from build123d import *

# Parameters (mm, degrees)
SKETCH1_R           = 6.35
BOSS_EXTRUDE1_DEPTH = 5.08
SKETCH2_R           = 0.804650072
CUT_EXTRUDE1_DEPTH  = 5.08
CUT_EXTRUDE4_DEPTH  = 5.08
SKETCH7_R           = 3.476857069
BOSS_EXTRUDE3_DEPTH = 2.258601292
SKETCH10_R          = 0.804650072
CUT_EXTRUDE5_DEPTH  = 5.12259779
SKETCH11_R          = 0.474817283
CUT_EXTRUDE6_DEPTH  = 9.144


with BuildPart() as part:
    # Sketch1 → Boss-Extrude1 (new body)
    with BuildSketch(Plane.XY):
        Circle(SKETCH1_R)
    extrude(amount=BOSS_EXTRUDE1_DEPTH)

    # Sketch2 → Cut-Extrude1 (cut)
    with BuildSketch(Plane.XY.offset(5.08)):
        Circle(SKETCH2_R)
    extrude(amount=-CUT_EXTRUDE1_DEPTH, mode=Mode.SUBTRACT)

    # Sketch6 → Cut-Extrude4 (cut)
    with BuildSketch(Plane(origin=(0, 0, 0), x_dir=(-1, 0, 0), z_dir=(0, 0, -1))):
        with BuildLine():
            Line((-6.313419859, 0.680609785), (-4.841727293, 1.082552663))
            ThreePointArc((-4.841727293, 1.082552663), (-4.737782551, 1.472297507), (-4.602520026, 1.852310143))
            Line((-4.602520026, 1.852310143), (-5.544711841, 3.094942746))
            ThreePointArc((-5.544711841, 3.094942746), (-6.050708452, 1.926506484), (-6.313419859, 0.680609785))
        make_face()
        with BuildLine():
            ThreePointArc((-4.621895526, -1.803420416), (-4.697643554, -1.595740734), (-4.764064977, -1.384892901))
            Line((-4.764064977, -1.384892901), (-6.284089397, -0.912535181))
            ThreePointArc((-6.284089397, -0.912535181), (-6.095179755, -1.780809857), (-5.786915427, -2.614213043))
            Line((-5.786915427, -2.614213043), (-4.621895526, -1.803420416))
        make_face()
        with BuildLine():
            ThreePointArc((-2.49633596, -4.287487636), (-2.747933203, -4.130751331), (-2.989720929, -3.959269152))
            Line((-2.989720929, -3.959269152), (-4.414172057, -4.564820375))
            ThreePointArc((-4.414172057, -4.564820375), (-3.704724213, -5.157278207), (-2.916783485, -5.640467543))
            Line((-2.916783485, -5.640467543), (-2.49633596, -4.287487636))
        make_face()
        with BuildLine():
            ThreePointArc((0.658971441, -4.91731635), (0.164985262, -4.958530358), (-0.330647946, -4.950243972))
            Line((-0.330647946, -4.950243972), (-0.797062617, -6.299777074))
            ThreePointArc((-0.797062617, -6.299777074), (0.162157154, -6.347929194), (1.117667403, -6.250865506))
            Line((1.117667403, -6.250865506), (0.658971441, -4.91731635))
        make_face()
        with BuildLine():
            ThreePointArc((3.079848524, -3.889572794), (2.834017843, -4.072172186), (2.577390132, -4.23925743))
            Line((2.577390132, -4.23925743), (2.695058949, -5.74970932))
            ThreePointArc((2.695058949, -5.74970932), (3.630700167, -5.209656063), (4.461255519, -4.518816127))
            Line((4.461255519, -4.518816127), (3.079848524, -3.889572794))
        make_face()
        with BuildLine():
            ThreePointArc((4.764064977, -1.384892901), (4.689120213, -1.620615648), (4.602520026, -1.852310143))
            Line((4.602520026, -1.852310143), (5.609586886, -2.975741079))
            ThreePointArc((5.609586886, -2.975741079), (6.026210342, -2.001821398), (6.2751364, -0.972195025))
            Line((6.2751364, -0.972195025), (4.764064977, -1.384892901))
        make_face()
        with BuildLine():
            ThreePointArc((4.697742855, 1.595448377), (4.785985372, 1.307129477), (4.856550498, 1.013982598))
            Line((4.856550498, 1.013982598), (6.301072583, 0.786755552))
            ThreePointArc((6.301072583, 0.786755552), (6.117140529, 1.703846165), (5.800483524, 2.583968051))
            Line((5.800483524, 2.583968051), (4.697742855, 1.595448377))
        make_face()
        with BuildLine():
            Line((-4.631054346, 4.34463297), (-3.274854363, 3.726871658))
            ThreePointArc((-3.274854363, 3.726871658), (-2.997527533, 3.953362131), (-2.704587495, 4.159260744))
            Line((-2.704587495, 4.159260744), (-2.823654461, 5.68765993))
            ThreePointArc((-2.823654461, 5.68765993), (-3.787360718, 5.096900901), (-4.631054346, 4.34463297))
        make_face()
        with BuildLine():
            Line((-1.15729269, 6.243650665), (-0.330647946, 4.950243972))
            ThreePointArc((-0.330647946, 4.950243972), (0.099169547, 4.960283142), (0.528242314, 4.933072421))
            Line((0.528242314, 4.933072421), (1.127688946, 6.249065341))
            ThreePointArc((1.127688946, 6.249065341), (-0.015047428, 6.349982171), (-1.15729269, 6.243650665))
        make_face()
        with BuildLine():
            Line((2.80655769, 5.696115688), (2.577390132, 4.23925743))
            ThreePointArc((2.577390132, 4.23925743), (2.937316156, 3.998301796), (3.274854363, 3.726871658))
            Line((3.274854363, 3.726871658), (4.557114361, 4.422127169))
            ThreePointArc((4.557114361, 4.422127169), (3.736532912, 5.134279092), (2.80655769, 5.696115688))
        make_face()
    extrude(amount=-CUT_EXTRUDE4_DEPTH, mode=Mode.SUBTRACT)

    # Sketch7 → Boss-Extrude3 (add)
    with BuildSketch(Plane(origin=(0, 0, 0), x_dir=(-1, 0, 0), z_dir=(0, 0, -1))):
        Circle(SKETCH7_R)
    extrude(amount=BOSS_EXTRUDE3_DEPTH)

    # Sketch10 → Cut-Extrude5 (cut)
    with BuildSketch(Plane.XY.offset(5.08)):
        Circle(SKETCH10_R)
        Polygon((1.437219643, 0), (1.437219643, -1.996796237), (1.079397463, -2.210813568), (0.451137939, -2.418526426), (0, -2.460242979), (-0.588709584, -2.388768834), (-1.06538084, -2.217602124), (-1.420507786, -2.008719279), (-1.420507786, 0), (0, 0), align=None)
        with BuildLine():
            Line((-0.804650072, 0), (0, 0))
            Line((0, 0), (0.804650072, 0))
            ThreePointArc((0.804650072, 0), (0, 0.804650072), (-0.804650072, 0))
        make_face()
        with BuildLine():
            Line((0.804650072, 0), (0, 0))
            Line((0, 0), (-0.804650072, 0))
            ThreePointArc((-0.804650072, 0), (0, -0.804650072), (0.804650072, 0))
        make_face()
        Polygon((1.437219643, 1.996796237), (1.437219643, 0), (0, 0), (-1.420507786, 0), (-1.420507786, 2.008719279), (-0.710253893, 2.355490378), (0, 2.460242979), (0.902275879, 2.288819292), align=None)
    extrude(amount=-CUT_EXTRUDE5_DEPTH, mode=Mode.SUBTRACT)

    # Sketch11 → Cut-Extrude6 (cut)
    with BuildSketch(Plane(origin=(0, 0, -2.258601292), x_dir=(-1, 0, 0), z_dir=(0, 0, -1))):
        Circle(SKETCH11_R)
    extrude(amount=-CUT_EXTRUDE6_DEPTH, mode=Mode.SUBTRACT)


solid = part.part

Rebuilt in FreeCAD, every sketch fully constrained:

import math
import FreeCAD as App
import Part
import Sketcher
from FreeCAD import Vector
Q = App.Units.Quantity


def add_polygon(sketch, points):
    """Adds a closed chain of lines whose ends are joined by coincident constraints."""
    first, n = sketch.GeometryCount, len(points)
    for a, b in zip(points, points[1:] + points[:1]):
        sketch.addGeometry(Part.LineSegment(App.Vector(*a, 0), App.Vector(*b, 0)), False)
    for i in range(n):
        sketch.addConstraint(Sketcher.Constraint("Coincident", first + i, 2, first + (i + 1) % n, 1))

doc = App.newDocument("Part")
params = doc.addObject("Spreadsheet::Sheet", "Params")
for row, (alias, value) in enumerate([
    ("sketch1_diameter", "0.5 in"),
    ("pad1_length", "0.2 in"),
    ("pocket1_length", "0.2 in"),
    ("sketch3_radius", "0.25 in"),
    ("pocket2_length", "0.2 in"),
    ("pad2_length", "2.258601 mm"),
    ("pocket3_length", "5.122598 mm"),
    ("pocket4_length", "0.36 in"),
], start=1):
    params.set(f"A{row}", alias)
    params.set(f"B{row}", "=" + value)
    params.setAlias(f"B{row}", alias)

body = doc.addObject("PartDesign::Body", "Body")

# Sketch on XY plane
sketch1 = doc.addObject("Sketcher::SketchObject", "Sketch")
body.addObject(sketch1)
sketch1.AttachmentSupport = (doc.XY_Plane, [""])
sketch1.MapMode = "FlatFace"
sketch1.addGeometry(Part.Circle(Vector(0, 0, 0), Vector(0, 0, 1), 6), False)
sketch1.addConstraint(Sketcher.Constraint("Coincident", 0, 3, -1, 1))
sketch1.addConstraint(Sketcher.Constraint("Diameter", 0, Q("0.5 in")))
sketch1.setExpression("Constraints[1]", "Params.sketch1_diameter")
pad1 = doc.addObject("PartDesign::Pad", "Pad")
body.addObject(pad1)
pad1.Profile = sketch1
pad1.setExpression("Length", "Params.pad1_length")

# Sketch on XY plane
sketch2 = doc.addObject("Sketcher::SketchObject", "Sketch001")
body.addObject(sketch2)
sketch2.AttachmentSupport = (doc.XY_Plane, [""])
sketch2.MapMode = "FlatFace"
sketch2.AttachmentOffset = App.Placement(Vector(0, 0, 0.2 * 25.4), App.Rotation())
sketch2.addGeometry(Part.Circle(Vector(0, 0, 0), Vector(0, 0, 1), 0.8), False)
sketch2.addConstraint(Sketcher.Constraint("Coincident", 0, 3, -1, 1))
sketch2.addConstraint(Sketcher.Constraint("Diameter", 0, Q("1.6093 mm")))
pocket1 = doc.addObject("PartDesign::Pocket", "Pocket")
body.addObject(pocket1)
pocket1.Profile = sketch2
pocket1.setExpression("Length", "Params.pocket1_length")

# Sketch on XY plane
sketch3 = doc.addObject("Sketcher::SketchObject", "Sketch002")
body.addObject(sketch3)
sketch3.AttachmentSupport = (doc.XY_Plane, [""])
sketch3.MapMode = "FlatFace"
sketch3.addGeometry(Part.LineSegment(Vector(6.31, 0.68, 0), Vector(4.84, 1.08, 0)), False)
sketch3.addGeometry(Part.ArcOfCircle(Part.Circle(Vector(0, 0, 0), Vector(0, 0, 1), 4.96), math.radians(12.6), math.radians(21.92)), False)
sketch3.addGeometry(Part.LineSegment(Vector(4.6, 1.85, 0), Vector(5.54, 3.09, 0)), False)
sketch3.addGeometry(Part.ArcOfCircle(Part.Circle(Vector(0, 0, 0), Vector(0, 0, 1), 6.35), math.radians(6), math.radians(29)), False)
sketch3.addGeometry(Part.ArcOfCircle(Part.Circle(Vector(0, 0, 0), Vector(0, 0, 1), 4.96), math.radians(-21.32), math.radians(-16.21)), False)
sketch3.addGeometry(Part.LineSegment(Vector(4.76, -1.38, 0), Vector(6.28, -0.91, 0)), False)
sketch3.addGeometry(Part.ArcOfCircle(Part.Circle(Vector(0, 0, 0), Vector(0, 0, 1), 6.35), math.radians(-24.31), math.radians(-8.26)), False)
sketch3.addGeometry(Part.LineSegment(Vector(5.79, -2.61, 0), Vector(4.62, -1.8, 0)), False)
sketch3.addGeometry(Part.ArcOfCircle(Part.Circle(Vector(0, 0, 0), Vector(0, 0, 1), 4.96), math.radians(-59.79), math.radians(-52.94)), False)
sketch3.addGeometry(Part.LineSegment(Vector(2.99, -3.96, 0), Vector(4.41, -4.56, 0)), False)
sketch3.addGeometry(Part.ArcOfCircle(Part.Circle(Vector(0, 0, 0), Vector(0, 0, 1), 6.35), math.radians(-62.66), math.radians(-45.96)), False)
sketch3.addGeometry(Part.LineSegment(Vector(2.92, -5.64, 0), Vector(2.5, -4.29, 0)), False)
sketch3.addGeometry(Part.ArcOfCircle(Part.Circle(Vector(0, 0, 0), Vector(0, 0, 1), 4.96), math.radians(-97.63), math.radians(-86.18)), False)
sketch3.addGeometry(Part.LineSegment(Vector(0.33, -4.95, 0), Vector(0.8, -6.3, 0)), False)
sketch3.addGeometry(Part.ArcOfCircle(Part.Circle(Vector(0, 0, 0), Vector(0, 0, 1), 6.35), math.radians(-100.14), math.radians(-82.79)), False)
sketch3.addGeometry(Part.LineSegment(Vector(-1.12, -6.25, 0), Vector(-0.66, -4.92, 0)), False)
sketch3.addGeometry(Part.ArcOfCircle(Part.Circle(Vector(0, 0, 0), Vector(0, 0, 1), 4.96), math.radians(-128.37), math.radians(-121.3)), False)
sketch3.addGeometry(Part.LineSegment(Vector(-2.58, -4.24, 0), Vector(-2.7, -5.75, 0)), False)
sketch3.addGeometry(Part.ArcOfCircle(Part.Circle(Vector(0, 0, 0), Vector(0, 0, 1), 6.35), math.radians(-134.63), math.radians(-115.11)), False)
sketch3.addGeometry(Part.LineSegment(Vector(-4.46, -4.52, 0), Vector(-3.08, -3.89, 0)), False)
sketch3.addGeometry(Part.ArcOfCircle(Part.Circle(Vector(0, 0, 0), Vector(0, 0, 1), 4.96), math.radians(-163.79), math.radians(-158.08)), False)
sketch3.addGeometry(Part.LineSegment(Vector(-4.6, -1.85, 0), Vector(-5.61, -2.98, 0)), False)
sketch3.addGeometry(Part.ArcOfCircle(Part.Circle(Vector(0, 0, 0), Vector(0, 0, 1), 6.35), math.radians(-171.19), math.radians(-152.06)), False)
sketch3.addGeometry(Part.LineSegment(Vector(-6.28, -0.97, 0), Vector(-4.76, -1.38, 0)), False)
sketch3.addGeometry(Part.ArcOfCircle(Part.Circle(Vector(0, 0, 0), Vector(0, 0, 1), 4.96), math.radians(161.24), math.radians(168.21)), False)
sketch3.addGeometry(Part.LineSegment(Vector(-4.86, 1.01, 0), Vector(-6.3, 0.79, 0)), False)
sketch3.addGeometry(Part.ArcOfCircle(Part.Circle(Vector(0, 0, 0), Vector(0, 0, 1), 6.35), math.radians(155.99), math.radians(172.88)), False)
sketch3.addGeometry(Part.LineSegment(Vector(-5.8, 2.58, 0), Vector(-4.7, 1.6, 0)), False)
sketch3.addGeometry(Part.LineSegment(Vector(4.63, 4.34, 0), Vector(3.27, 3.73, 0)), False)
sketch3.addGeometry(Part.ArcOfCircle(Part.Circle(Vector(0, 0, 0), Vector(0, 0, 1), 4.96), math.radians(48.69), math.radians(56.97)), False)
sketch3.addGeometry(Part.LineSegment(Vector(2.7, 4.16, 0), Vector(2.82, 5.69, 0)), False)
sketch3.addGeometry(Part.ArcOfCircle(Part.Circle(Vector(0, 0, 0), Vector(0, 0, 1), 6.35), math.radians(43), math.radians(64)), False)
sketch3.addGeometry(Part.LineSegment(Vector(1.16, 6.24, 0), Vector(0.33, 4.95, 0)), False)
sketch3.addGeometry(Part.ArcOfCircle(Part.Circle(Vector(0, 0, 0), Vector(0, 0, 1), 4.96), math.radians(86.18), math.radians(96.11)), False)
sketch3.addGeometry(Part.LineSegment(Vector(-0.53, 4.93, 0), Vector(-1.13, 6.25, 0)), False)
sketch3.addGeometry(Part.ArcOfCircle(Part.Circle(Vector(0, 0, 0), Vector(0, 0, 1), 6.35), math.radians(79), math.radians(100)), False)
sketch3.addGeometry(Part.LineSegment(Vector(-2.81, 5.7, 0), Vector(-2.58, 4.24, 0)), False)
sketch3.addGeometry(Part.ArcOfCircle(Part.Circle(Vector(0, 0, 0), Vector(0, 0, 1), 4.96), math.radians(121.3), math.radians(131.31)), False)
sketch3.addGeometry(Part.LineSegment(Vector(-3.27, 3.73, 0), Vector(-4.56, 4.42, 0)), False)
sketch3.addGeometry(Part.ArcOfCircle(Part.Circle(Vector(0, 0, 0), Vector(0, 0, 1), 6.35), math.radians(116.23), math.radians(135.86)), False)
sketch3.addConstraint(Sketcher.Constraint("Coincident", 0, 2, 1, 1))
sketch3.addConstraint(Sketcher.Constraint("Coincident", 1, 2, 2, 1))
sketch3.addConstraint(Sketcher.Constraint("Coincident", 2, 2, 3, 2))
sketch3.addConstraint(Sketcher.Constraint("Coincident", 3, 1, 0, 1))
sketch3.addConstraint(Sketcher.Constraint("Coincident", 4, 2, 5, 1))
sketch3.addConstraint(Sketcher.Constraint("Coincident", 5, 2, 6, 2))
sketch3.addConstraint(Sketcher.Constraint("Coincident", 6, 1, 7, 1))
sketch3.addConstraint(Sketcher.Constraint("Coincident", 7, 2, 4, 1))
sketch3.addConstraint(Sketcher.Constraint("Coincident", 8, 2, 9, 1))
sketch3.addConstraint(Sketcher.Constraint("Coincident", 9, 2, 10, 2))
sketch3.addConstraint(Sketcher.Constraint("Coincident", 10, 1, 11, 1))
sketch3.addConstraint(Sketcher.Constraint("Coincident", 11, 2, 8, 1))
sketch3.addConstraint(Sketcher.Constraint("Coincident", 12, 2, 13, 1))
sketch3.addConstraint(Sketcher.Constraint("Coincident", 13, 2, 14, 2))
sketch3.addConstraint(Sketcher.Constraint("Coincident", 14, 1, 15, 1))
sketch3.addConstraint(Sketcher.Constraint("Coincident", 15, 2, 12, 1))
sketch3.addConstraint(Sketcher.Constraint("Coincident", 16, 2, 17, 1))
sketch3.addConstraint(Sketcher.Constraint("Coincident", 17, 2, 18, 2))
sketch3.addConstraint(Sketcher.Constraint("Coincident", 18, 1, 19, 1))
sketch3.addConstraint(Sketcher.Constraint("Coincident", 19, 2, 16, 1))
sketch3.addConstraint(Sketcher.Constraint("Coincident", 20, 2, 21, 1))
sketch3.addConstraint(Sketcher.Constraint("Coincident", 21, 2, 22, 2))
sketch3.addConstraint(Sketcher.Constraint("Coincident", 22, 1, 23, 1))
sketch3.addConstraint(Sketcher.Constraint("Coincident", 23, 2, 20, 1))
sketch3.addConstraint(Sketcher.Constraint("Coincident", 24, 2, 25, 1))
sketch3.addConstraint(Sketcher.Constraint("Coincident", 25, 2, 26, 2))
sketch3.addConstraint(Sketcher.Constraint("Coincident", 26, 1, 27, 1))
sketch3.addConstraint(Sketcher.Constraint("Coincident", 27, 2, 24, 1))
sketch3.addConstraint(Sketcher.Constraint("Coincident", 28, 2, 29, 1))
sketch3.addConstraint(Sketcher.Constraint("Coincident", 29, 2, 30, 1))
sketch3.addConstraint(Sketcher.Constraint("Coincident", 30, 2, 31, 2))
sketch3.addConstraint(Sketcher.Constraint("Coincident", 31, 1, 28, 1))
sketch3.addConstraint(Sketcher.Constraint("Coincident", 32, 2, 33, 1))
sketch3.addConstraint(Sketcher.Constraint("Coincident", 33, 2, 34, 1))
sketch3.addConstraint(Sketcher.Constraint("Coincident", 34, 2, 35, 2))
sketch3.addConstraint(Sketcher.Constraint("Coincident", 35, 1, 32, 1))
sketch3.addConstraint(Sketcher.Constraint("Coincident", 36, 2, 37, 1))
sketch3.addConstraint(Sketcher.Constraint("Coincident", 37, 2, 38, 1))
sketch3.addConstraint(Sketcher.Constraint("Coincident", 38, 2, 39, 2))
sketch3.addConstraint(Sketcher.Constraint("Coincident", 39, 1, 36, 1))
sketch3.addConstraint(Sketcher.Constraint("Coincident", 1, 3, -1, 1))
sketch3.addConstraint(Sketcher.Constraint("Coincident", 3, 3, -1, 1))
sketch3.addConstraint(Sketcher.Constraint("Coincident", 4, 3, -1, 1))
sketch3.addConstraint(Sketcher.Constraint("Coincident", 6, 3, -1, 1))
sketch3.addConstraint(Sketcher.Constraint("Coincident", 8, 3, -1, 1))
sketch3.addConstraint(Sketcher.Constraint("Coincident", 10, 3, -1, 1))
sketch3.addConstraint(Sketcher.Constraint("Coincident", 12, 3, -1, 1))
sketch3.addConstraint(Sketcher.Constraint("Coincident", 14, 3, -1, 1))
sketch3.addConstraint(Sketcher.Constraint("Coincident", 16, 3, -1, 1))
sketch3.addConstraint(Sketcher.Constraint("Coincident", 18, 3, -1, 1))
sketch3.addConstraint(Sketcher.Constraint("Coincident", 20, 3, -1, 1))
sketch3.addConstraint(Sketcher.Constraint("Coincident", 22, 3, -1, 1))
sketch3.addConstraint(Sketcher.Constraint("Coincident", 24, 3, -1, 1))
sketch3.addConstraint(Sketcher.Constraint("Coincident", 26, 3, -1, 1))
sketch3.addConstraint(Sketcher.Constraint("Coincident", 29, 3, -1, 1))
sketch3.addConstraint(Sketcher.Constraint("Coincident", 31, 3, -1, 1))
sketch3.addConstraint(Sketcher.Constraint("Coincident", 33, 3, -1, 1))
sketch3.addConstraint(Sketcher.Constraint("Coincident", 35, 3, -1, 1))
sketch3.addConstraint(Sketcher.Constraint("Coincident", 37, 3, -1, 1))
sketch3.addConstraint(Sketcher.Constraint("Coincident", 39, 3, -1, 1))
sketch3.addConstraint(Sketcher.Constraint("Equal", 1, 4))
sketch3.addConstraint(Sketcher.Constraint("Equal", 3, 6))
sketch3.addConstraint(Sketcher.Constraint("Equal", 4, 8))
sketch3.addConstraint(Sketcher.Constraint("Equal", 6, 10))
sketch3.addConstraint(Sketcher.Constraint("Equal", 8, 12))
sketch3.addConstraint(Sketcher.Constraint("Equal", 10, 14))
sketch3.addConstraint(Sketcher.Constraint("Equal", 12, 16))
sketch3.addConstraint(Sketcher.Constraint("Equal", 14, 18))
sketch3.addConstraint(Sketcher.Constraint("Equal", 16, 20))
sketch3.addConstraint(Sketcher.Constraint("Equal", 18, 22))
sketch3.addConstraint(Sketcher.Constraint("Equal", 20, 24))
sketch3.addConstraint(Sketcher.Constraint("Equal", 22, 26))
sketch3.addConstraint(Sketcher.Constraint("Equal", 24, 29))
sketch3.addConstraint(Sketcher.Constraint("Equal", 26, 31))
sketch3.addConstraint(Sketcher.Constraint("Equal", 29, 33))
sketch3.addConstraint(Sketcher.Constraint("Equal", 31, 35))
sketch3.addConstraint(Sketcher.Constraint("Equal", 33, 37))
sketch3.addConstraint(Sketcher.Constraint("Equal", 35, 39))
sketch3.addConstraint(Sketcher.Constraint("Perpendicular", 5, 11))
sketch3.addConstraint(Sketcher.Constraint("Parallel", 0, 23))
sketch3.addConstraint(Sketcher.Constraint("Perpendicular", 21, 27))
sketch3.addConstraint(Sketcher.Constraint("Parallel", 19, 28))
sketch3.addConstraint(Sketcher.Constraint("Parallel", 17, 30))
sketch3.addConstraint(Sketcher.Constraint("Perpendicular", 28, 34))
sketch3.addConstraint(Sketcher.Constraint("Perpendicular", 25, 36))
sketch3.addConstraint(Sketcher.Constraint("Horizontal", 4, 2, 23, 2))
sketch3.addConstraint(Sketcher.Constraint("Horizontal", 28, 2, 37, 2))
sketch3.addConstraint(Sketcher.Constraint("Vertical", 12, 2, 32, 2))
sketch3.addConstraint(Sketcher.Constraint("Vertical", 16, 2, 36, 2))
sketch3.addConstraint(Sketcher.Constraint("Radius", 3, Q("0.25 in")))
sketch3.addConstraint(Sketcher.Constraint("DistanceY", 16, 2, -1, 1, Q("0.1668999 in")))
sketch3.addConstraint(Sketcher.Constraint("Radius", 1, Q("4.961274 mm")))
sketch3.addConstraint(Sketcher.Constraint("DistanceX", 1, 2, 3, 1, Q("1.7109 mm")))
sketch3.addConstraint(Sketcher.Constraint("DistanceY", 3, 1, 1, 2, Q("1.1717 mm")))
sketch3.addConstraint(Sketcher.Constraint("DistanceY", 9, 2, 7, 2, Q("2.7614 mm")))
sketch3.addConstraint(Sketcher.Constraint("DistanceY", 10, 1, 8, 2, Q("1.681198 mm")))
sketch3.addConstraint(Sketcher.Constraint("DistanceY", 15, 2, 18, 1, Q("0.3985 mm")))
sketch3.addConstraint(Sketcher.Constraint("DistanceY", 17, 2, 20, 2, Q("3.897399 mm")))
sketch3.addConstraint(Sketcher.Constraint("DistanceY", 29, 2, 30, 2, Q("1.528399 mm")))
sketch3.addConstraint(Sketcher.Constraint("DistanceX", 30, 2, 28, 2, Q("0.4512 mm")))
sketch3.addConstraint(Sketcher.Constraint("DistanceX", 28, 2, 31, 1, Q("1.3562 mm")))
sketch3.addConstraint(Sketcher.Constraint("DistanceY", 28, 2, 33, 2, Q("1.206201 mm")))
sketch3.addConstraint(Sketcher.Constraint("DistanceX", 36, 2, 34, 2, Q("1.449701 mm")))
sketch3.addConstraint(Sketcher.Constraint("Distance", 13, Q("1.427859 mm")))
sketch3.addConstraint(Sketcher.Constraint("Distance", 19, Q("1.51797 mm")))
sketch3.addConstraint(Sketcher.Constraint("Distance", 27, Q("1.480948 mm")))
sketch3.addConstraint(Sketcher.Constraint("Distance", 38, Q("1.45862 mm")))
sketch3.addConstraint(Sketcher.Constraint("DistanceX", -1, 1, 2, 2, Q("5.544712 mm")))
sketch3.addConstraint(Sketcher.Constraint("DistanceX", -1, 1, 5, 2, Q("6.284089 mm")))
sketch3.addConstraint(Sketcher.Constraint("DistanceY", 7, 2, -1, 1, Q("1.80342 mm")))
sketch3.addConstraint(Sketcher.Constraint("DistanceX", -1, 1, 8, 2, Q("2.989721 mm")))
sketch3.addConstraint(Sketcher.Constraint("DistanceY", 21, 2, -1, 1, Q("2.975741 mm")))
sketch3.addConstraint(Sketcher.Constraint("DistanceX", 24, 2, -1, 1, Q("4.85655 mm")))
sketch3.addConstraint(Sketcher.Constraint("DistanceY", -1, 1, 35, 1, Q("6.243651 mm")))
sketch3.addConstraint(Sketcher.Constraint("DistanceY", 0, 2, 2, 2, Q("2.01239 mm")))
sketch3.addConstraint(Sketcher.Constraint("DistanceX", 4, 2, 6, 1, Q("1.02285 mm")))
sketch3.addConstraint(Sketcher.Constraint("DistanceY", 6, 1, 4, 2, Q("1.22932 mm")))
sketch3.addConstraint(Sketcher.Constraint("DistanceX", 12, 2, 11, 2, Q("2.165688 mm")))
sketch3.addConstraint(Sketcher.Constraint("DistanceX", 14, 1, 13, 2, Q("1.91473 mm")))
sketch3.addConstraint(Sketcher.Constraint("DistanceY", 22, 1, 25, 2, Q("1.758951 mm")))
sketch3.setExpression("Constraints[89]", "Params.sketch3_radius")
pocket2 = doc.addObject("PartDesign::Pocket", "Pocket001")
body.addObject(pocket2)
pocket2.Profile = sketch3
pocket2.setExpression("Length", "Params.pocket2_length")
pocket2.Reversed = True

# Sketch on XY plane
sketch4 = doc.addObject("Sketcher::SketchObject", "Sketch003")
body.addObject(sketch4)
sketch4.AttachmentSupport = (doc.XY_Plane, [""])
sketch4.MapMode = "FlatFace"
sketch4.addGeometry(Part.Circle(Vector(0, 0, 0), Vector(0, 0, 1), 3.5), False)
sketch4.addConstraint(Sketcher.Constraint("Coincident", 0, 3, -1, 1))
sketch4.addConstraint(Sketcher.Constraint("Diameter", 0, Q("6.953714 mm")))
pad2 = doc.addObject("PartDesign::Pad", "Pad001")
body.addObject(pad2)
pad2.Profile = sketch4
pad2.setExpression("Length", "Params.pad2_length")
pad2.Reversed = True

# Sketch on XY plane
sketch5 = doc.addObject("Sketcher::SketchObject", "Sketch004")
body.addObject(sketch5)
sketch5.AttachmentSupport = (doc.XY_Plane, [""])
sketch5.MapMode = "FlatFace"
sketch5.AttachmentOffset = App.Placement(Vector(0, 0, 0.2 * 25.4), App.Rotation())
add_polygon(sketch5, [(1.44, -2), (1.44, 2), (0.9, 2.29), (0, 2.46), (-0.71, 2.36), (-1.42, 2.01), (-1.42, -2.01), (-1.07, -2.22), (-0.59, -2.39), (0, -2.46), (0.45, -2.42), (1.08, -2.21)])  # lines 0-11
sketch5.addConstraint(Sketcher.Constraint("Vertical", 0))
sketch5.addConstraint(Sketcher.Constraint("Vertical", 5))
sketch5.addConstraint(Sketcher.Constraint("Symmetric", 2, 2, 8, 2, -1, 1))
sketch5.addConstraint(Sketcher.Constraint("PointOnObject", 2, 2, -2))
sketch5.addConstraint(Sketcher.Constraint("DistanceY", 5, 2, 5, 1, Q("4.017439 mm")))
sketch5.addConstraint(Sketcher.Constraint("DistanceY", 4, 2, 1, 2, Q("0.2801 mm")))
sketch5.addConstraint(Sketcher.Constraint("DistanceX", 6, 2, 0, 2, Q("2.5026 mm")))
sketch5.addConstraint(Sketcher.Constraint("DistanceY", 6, 2, 0, 2, Q("4.214398 mm")))
sketch5.addConstraint(Sketcher.Constraint("DistanceX", 5, 2, 7, 2, Q("0.831798 mm")))
sketch5.addConstraint(Sketcher.Constraint("Distance", 1, Q("0.609461 mm")))
sketch5.addConstraint(Sketcher.Constraint("Distance", 7, Q("0.506472 mm")))
sketch5.addConstraint(Sketcher.Constraint("Distance", 11, Q("0.416941 mm")))
sketch5.addConstraint(Sketcher.Constraint("DistanceY", 0, 1, 0, 2, Q("3.993592 mm")))
sketch5.addConstraint(Sketcher.Constraint("DistanceX", -1, 1, 0, 2, Q("1.43722 mm")))
sketch5.addConstraint(Sketcher.Constraint("DistanceY", -1, 1, 1, 2, Q("2.288819 mm")))
sketch5.addConstraint(Sketcher.Constraint("DistanceY", -1, 1, 3, 2, Q("2.35549 mm")))
sketch5.addConstraint(Sketcher.Constraint("DistanceX", 7, 2, -1, 1, Q("0.58871 mm")))
sketch5.addConstraint(Sketcher.Constraint("DistanceY", 7, 2, -1, 1, Q("2.388769 mm")))
sketch5.addConstraint(Sketcher.Constraint("DistanceX", 3, 2, 1, 2, Q("1.61253 mm")))
sketch5.addConstraint(Sketcher.Constraint("DistanceY", 8, 2, 6, 2, Q("0.242641 mm")))
sketch5.addConstraint(Sketcher.Constraint("DistanceX", 6, 2, 9, 2, Q("1.516519 mm")))
sketch5.addConstraint(Sketcher.Constraint("DistanceX", 9, 2, 10, 2, Q("0.62826 mm")))
sketch5.addConstraint(Sketcher.Constraint("DistanceY", 9, 2, 11, 2, Q("0.42173 mm")))
pocket3 = doc.addObject("PartDesign::Pocket", "Pocket002")
body.addObject(pocket3)
pocket3.Profile = sketch5
pocket3.setExpression("Length", "Params.pocket3_length")

# Sketch on XY plane
sketch6 = doc.addObject("Sketcher::SketchObject", "Sketch005")
body.addObject(sketch6)
sketch6.AttachmentSupport = (doc.XY_Plane, [""])
sketch6.MapMode = "FlatFace"
sketch6.AttachmentOffset = App.Placement(Vector(0, 0, -2.258601), App.Rotation())
sketch6.addGeometry(Part.Circle(Vector(0, 0, 0), Vector(0, 0, 1), 0.47), False)
sketch6.addConstraint(Sketcher.Constraint("Coincident", 0, 3, -1, 1))
sketch6.addConstraint(Sketcher.Constraint("Diameter", 0, Q("0.949635 mm")))
pocket4 = doc.addObject("PartDesign::Pocket", "Pocket003")
body.addObject(pocket4)
pocket4.Profile = sketch6
pocket4.setExpression("Length", "Params.pocket4_length")
pocket4.Reversed = True

doc.recompute()
